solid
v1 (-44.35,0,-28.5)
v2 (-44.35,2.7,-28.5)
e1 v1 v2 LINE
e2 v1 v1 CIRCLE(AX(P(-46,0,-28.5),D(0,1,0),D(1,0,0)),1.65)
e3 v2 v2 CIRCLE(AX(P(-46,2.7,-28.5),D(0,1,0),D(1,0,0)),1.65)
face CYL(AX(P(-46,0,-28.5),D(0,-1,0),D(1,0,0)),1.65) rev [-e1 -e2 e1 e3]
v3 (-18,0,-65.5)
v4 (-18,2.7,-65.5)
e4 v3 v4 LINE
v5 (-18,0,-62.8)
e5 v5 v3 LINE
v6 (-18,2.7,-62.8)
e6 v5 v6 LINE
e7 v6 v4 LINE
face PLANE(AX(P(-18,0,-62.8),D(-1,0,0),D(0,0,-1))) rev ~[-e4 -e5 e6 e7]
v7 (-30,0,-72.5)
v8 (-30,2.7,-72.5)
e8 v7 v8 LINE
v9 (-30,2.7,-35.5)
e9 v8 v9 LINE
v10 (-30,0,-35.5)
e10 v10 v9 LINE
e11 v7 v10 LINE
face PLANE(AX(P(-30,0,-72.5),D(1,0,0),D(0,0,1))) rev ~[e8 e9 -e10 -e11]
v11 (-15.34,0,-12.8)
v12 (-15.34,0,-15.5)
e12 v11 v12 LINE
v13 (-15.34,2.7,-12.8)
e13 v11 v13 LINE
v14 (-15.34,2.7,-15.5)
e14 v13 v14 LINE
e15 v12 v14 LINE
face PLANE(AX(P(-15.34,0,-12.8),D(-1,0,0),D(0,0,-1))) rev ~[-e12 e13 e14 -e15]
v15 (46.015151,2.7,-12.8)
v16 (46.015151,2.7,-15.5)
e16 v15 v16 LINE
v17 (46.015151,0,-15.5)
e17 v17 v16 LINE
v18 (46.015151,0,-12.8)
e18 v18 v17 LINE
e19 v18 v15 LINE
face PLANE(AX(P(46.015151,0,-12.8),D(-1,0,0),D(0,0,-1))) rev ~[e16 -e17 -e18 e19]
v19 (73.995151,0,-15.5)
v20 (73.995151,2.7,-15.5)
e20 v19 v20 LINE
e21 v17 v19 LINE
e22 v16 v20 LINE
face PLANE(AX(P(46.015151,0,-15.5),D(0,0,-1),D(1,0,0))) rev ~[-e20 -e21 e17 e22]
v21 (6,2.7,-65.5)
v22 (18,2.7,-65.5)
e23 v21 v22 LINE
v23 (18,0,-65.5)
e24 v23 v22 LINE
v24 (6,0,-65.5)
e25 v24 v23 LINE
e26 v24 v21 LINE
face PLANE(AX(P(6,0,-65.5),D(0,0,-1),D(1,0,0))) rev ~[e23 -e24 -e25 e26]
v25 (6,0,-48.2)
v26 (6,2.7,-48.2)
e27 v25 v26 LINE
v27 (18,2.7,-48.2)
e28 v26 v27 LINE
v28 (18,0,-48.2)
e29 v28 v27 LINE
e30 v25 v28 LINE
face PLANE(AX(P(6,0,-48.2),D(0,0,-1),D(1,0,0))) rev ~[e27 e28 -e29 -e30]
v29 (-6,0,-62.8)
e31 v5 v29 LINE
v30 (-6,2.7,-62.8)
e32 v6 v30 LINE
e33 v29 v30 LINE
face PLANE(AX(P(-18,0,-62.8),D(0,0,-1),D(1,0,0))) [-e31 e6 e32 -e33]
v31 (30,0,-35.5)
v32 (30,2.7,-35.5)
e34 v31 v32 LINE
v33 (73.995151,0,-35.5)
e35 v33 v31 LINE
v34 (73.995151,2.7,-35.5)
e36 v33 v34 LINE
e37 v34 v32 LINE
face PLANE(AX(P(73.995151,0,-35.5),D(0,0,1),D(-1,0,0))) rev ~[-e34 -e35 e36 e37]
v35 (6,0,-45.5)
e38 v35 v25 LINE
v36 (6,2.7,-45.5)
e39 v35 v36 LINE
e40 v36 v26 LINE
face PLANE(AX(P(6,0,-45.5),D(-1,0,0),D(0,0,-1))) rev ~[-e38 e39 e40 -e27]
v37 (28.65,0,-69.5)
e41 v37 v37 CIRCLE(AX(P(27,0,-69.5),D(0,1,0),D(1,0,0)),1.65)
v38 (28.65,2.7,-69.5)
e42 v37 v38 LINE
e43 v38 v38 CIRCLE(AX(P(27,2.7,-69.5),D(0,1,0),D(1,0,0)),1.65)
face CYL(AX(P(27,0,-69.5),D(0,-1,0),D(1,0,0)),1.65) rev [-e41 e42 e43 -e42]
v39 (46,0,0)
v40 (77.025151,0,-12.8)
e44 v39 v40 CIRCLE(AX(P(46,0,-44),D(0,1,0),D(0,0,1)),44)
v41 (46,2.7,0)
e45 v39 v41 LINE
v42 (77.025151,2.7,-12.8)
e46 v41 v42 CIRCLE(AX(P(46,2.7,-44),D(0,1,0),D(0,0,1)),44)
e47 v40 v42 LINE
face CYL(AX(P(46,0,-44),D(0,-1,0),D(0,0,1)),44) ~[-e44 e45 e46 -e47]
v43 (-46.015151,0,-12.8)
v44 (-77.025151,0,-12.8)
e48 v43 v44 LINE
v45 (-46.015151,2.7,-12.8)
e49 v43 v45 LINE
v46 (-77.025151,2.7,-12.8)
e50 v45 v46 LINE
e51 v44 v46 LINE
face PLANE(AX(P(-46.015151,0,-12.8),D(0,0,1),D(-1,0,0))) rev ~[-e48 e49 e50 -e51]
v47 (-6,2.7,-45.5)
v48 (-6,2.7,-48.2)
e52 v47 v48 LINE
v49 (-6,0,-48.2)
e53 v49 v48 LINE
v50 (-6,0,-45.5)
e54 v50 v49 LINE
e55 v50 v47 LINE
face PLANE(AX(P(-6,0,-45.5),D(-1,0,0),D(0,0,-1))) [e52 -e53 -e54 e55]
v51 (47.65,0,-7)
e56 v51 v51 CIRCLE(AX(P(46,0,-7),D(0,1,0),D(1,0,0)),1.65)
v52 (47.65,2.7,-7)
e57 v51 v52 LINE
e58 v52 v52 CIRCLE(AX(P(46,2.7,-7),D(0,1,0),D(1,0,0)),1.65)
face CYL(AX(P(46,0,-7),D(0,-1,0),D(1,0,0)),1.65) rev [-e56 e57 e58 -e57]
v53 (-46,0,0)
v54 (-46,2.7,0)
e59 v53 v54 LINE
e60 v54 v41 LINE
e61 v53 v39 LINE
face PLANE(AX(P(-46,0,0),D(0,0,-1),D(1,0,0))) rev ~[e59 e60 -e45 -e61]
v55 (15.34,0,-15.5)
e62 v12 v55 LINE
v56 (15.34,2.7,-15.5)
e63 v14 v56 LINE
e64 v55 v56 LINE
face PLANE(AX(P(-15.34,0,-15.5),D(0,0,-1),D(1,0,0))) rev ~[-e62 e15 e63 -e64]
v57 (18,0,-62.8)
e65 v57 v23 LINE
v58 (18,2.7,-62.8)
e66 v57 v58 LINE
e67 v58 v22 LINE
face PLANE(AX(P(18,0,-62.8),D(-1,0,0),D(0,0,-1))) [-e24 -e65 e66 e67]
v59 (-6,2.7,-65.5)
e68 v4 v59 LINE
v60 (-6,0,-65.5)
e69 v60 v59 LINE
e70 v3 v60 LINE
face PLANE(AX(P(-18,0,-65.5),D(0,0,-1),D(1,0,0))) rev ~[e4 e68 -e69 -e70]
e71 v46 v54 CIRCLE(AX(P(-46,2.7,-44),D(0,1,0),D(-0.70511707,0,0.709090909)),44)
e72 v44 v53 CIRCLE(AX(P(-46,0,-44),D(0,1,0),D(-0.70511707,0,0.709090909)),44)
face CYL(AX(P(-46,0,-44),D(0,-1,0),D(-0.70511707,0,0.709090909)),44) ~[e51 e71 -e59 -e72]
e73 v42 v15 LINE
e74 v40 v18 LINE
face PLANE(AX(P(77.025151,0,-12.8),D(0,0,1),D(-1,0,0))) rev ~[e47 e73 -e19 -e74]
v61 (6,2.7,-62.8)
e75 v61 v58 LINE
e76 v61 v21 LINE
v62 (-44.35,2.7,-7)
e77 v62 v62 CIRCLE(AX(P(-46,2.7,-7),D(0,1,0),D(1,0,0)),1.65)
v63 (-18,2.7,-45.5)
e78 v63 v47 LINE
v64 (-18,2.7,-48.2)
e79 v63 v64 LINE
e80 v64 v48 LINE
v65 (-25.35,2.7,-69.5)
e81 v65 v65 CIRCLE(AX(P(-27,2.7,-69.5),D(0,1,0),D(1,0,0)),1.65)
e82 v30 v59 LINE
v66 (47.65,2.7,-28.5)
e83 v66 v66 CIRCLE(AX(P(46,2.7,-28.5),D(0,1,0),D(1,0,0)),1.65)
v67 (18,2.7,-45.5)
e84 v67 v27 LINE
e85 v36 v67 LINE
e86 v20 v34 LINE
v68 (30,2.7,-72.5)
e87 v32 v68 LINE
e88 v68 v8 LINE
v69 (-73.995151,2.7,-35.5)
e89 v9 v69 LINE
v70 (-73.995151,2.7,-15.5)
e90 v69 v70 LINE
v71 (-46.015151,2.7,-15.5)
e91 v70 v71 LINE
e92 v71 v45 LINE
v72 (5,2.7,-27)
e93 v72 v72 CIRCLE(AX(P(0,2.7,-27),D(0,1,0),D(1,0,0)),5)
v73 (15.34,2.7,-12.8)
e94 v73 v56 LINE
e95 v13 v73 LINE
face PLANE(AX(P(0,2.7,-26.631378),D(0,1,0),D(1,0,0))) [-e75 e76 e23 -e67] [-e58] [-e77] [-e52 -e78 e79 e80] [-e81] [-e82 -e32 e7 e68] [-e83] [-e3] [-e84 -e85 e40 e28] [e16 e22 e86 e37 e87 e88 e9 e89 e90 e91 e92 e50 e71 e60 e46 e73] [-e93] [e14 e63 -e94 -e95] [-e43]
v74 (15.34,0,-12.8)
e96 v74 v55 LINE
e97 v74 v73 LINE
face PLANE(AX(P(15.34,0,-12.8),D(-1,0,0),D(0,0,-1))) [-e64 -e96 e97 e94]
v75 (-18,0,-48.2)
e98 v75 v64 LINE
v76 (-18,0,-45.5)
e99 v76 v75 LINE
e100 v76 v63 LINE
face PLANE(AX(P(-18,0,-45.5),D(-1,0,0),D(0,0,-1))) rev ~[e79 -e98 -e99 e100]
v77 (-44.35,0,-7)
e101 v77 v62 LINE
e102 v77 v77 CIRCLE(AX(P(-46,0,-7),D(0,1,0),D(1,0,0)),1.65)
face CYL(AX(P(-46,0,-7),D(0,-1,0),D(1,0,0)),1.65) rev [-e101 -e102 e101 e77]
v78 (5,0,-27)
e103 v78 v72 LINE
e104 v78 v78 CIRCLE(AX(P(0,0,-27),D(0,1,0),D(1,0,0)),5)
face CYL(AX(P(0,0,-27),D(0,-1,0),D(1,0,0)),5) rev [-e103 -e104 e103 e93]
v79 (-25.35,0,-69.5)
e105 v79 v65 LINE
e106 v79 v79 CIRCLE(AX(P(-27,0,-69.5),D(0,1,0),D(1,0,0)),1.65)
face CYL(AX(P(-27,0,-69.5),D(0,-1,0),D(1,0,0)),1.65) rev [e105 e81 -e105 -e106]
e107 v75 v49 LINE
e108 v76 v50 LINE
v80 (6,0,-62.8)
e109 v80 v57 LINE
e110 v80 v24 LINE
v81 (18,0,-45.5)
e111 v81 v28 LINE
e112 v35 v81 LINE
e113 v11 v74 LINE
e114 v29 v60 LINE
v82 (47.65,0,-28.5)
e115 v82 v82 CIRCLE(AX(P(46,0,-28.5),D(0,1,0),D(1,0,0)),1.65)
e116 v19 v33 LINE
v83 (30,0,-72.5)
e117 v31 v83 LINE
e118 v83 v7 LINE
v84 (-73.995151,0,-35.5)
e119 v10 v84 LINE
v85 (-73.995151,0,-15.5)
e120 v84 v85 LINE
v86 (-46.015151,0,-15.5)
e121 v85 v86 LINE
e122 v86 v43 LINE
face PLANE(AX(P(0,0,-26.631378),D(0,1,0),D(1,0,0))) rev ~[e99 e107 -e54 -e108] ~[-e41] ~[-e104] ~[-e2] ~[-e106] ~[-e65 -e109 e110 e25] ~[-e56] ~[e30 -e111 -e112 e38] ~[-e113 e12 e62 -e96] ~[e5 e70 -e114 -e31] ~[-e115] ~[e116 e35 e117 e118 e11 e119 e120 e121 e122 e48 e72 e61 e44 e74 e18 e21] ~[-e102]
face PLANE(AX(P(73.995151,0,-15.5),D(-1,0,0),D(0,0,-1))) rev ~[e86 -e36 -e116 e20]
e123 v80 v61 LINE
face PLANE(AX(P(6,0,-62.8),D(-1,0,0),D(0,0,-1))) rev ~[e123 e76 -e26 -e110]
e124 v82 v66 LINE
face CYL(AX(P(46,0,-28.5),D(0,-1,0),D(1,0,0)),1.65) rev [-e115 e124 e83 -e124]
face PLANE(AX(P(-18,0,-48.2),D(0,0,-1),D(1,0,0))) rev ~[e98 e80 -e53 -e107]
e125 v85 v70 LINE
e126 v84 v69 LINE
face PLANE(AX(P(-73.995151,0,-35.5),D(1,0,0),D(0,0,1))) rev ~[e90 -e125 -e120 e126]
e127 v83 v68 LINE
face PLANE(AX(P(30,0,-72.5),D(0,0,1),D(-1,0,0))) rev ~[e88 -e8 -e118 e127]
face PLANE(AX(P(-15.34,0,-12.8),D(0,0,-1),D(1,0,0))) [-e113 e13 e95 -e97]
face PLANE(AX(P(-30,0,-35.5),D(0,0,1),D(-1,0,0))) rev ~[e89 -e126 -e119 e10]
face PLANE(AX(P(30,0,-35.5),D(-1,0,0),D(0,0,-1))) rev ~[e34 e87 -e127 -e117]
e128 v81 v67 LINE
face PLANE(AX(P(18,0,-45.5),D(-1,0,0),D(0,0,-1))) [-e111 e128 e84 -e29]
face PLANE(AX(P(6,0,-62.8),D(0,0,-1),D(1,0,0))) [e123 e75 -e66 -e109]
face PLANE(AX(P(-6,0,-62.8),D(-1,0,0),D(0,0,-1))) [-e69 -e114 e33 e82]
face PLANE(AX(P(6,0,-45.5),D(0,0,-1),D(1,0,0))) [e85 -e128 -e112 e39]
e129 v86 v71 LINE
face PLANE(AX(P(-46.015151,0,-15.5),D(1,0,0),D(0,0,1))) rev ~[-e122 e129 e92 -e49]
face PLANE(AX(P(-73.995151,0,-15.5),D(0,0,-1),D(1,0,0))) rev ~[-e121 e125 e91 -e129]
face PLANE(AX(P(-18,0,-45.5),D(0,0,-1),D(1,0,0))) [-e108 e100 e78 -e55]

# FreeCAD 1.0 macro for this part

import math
import FreeCAD as App
import Part
import Sketcher
from FreeCAD import Vector

doc = App.newDocument("Part")
body = doc.addObject("PartDesign::Body", "Body")

sketch1 = doc.addObject("Sketcher::SketchObject", "Sketch")
body.addObject(sketch1)
sketch1.AttachmentSupport = (doc.XZ_Plane, [""])
sketch1.MapMode = "FlatFace"
sketch1.addGeometry([
    Part.LineSegment(Vector(-46, 0, 0), Vector(46, 0, 0)),
    Part.ArcOfCircle(Part.Circle(Vector(46, -44, 0), Vector(0, 0, 1), 44), math.radians(45.160997), math.radians(90)),
    Part.LineSegment(Vector(77.025151, -12.8, 0), Vector(46.015151, -12.8, 0)),
    Part.LineSegment(Vector(46.015151, -12.8, 0), Vector(46.015151, -15.5, 0)),
    Part.LineSegment(Vector(46.015151, -15.5, 0), Vector(73.995151, -15.5, 0)),
    Part.LineSegment(Vector(73.995151, -15.5, 0), Vector(73.995151, -35.5, 0)),
    Part.LineSegment(Vector(73.995151, -35.5, 0), Vector(30, -35.5, 0)),
    Part.LineSegment(Vector(30, -35.5, 0), Vector(30, -72.5, 0)),
    Part.LineSegment(Vector(30, -72.5, 0), Vector(-30, -72.5, 0)),
    Part.LineSegment(Vector(-30, -72.5, 0), Vector(-30, -35.5, 0)),
    Part.LineSegment(Vector(-30, -35.5, 0), Vector(-73.995151, -35.5, 0)),
    Part.LineSegment(Vector(-73.995151, -35.5, 0), Vector(-73.995151, -15.5, 0)),
    Part.LineSegment(Vector(-73.995151, -15.5, 0), Vector(-46.015151, -15.5, 0)),
    Part.LineSegment(Vector(-46.015151, -15.5, 0), Vector(-46.015151, -12.8, 0)),
    Part.LineSegment(Vector(-46.015151, -12.8, 0), Vector(-77.025151, -12.8, 0)),
    Part.ArcOfCircle(Part.Circle(Vector(-46, -44, 0), Vector(0, 0, 1), 44), math.radians(90), math.radians(134.839003)),
    Part.Circle(Vector(-46, -7, 0), Vector(0, 0, 1), 1.65),
    Part.Circle(Vector(-46, -28.5, 0), Vector(0, 0, 1), 1.65),
    Part.LineSegment(Vector(15.34, -12.8, 0), Vector(-15.34, -12.8, 0)),
    Part.LineSegment(Vector(-15.34, -12.8, 0), Vector(-15.34, -15.5, 0)),
    Part.LineSegment(Vector(-15.34, -15.5, 0), Vector(15.34, -15.5, 0)),
    Part.LineSegment(Vector(15.34, -15.5, 0), Vector(15.34, -12.8, 0)),
    Part.Circle(Vector(46, -7, 0), Vector(0, 0, 1), 1.65),
    Part.Circle(Vector(0, -27, 0), Vector(0, 0, 1), 5),
    Part.Circle(Vector(46, -28.5, 0), Vector(0, 0, 1), 1.65),
    Part.LineSegment(Vector(-6, -45.5, 0), Vector(-18, -45.5, 0)),
    Part.LineSegment(Vector(-18, -45.5, 0), Vector(-18, -48.2, 0)),
    Part.LineSegment(Vector(-18, -48.2, 0), Vector(-6, -48.2, 0)),
    Part.LineSegment(Vector(-6, -48.2, 0), Vector(-6, -45.5, 0)),
    Part.Circle(Vector(-27, -69.5, 0), Vector(0, 0, 1), 1.65),
    Part.LineSegment(Vector(-6, -62.8, 0), Vector(-18, -62.8, 0)),
    Part.LineSegment(Vector(-18, -62.8, 0), Vector(-18, -65.5, 0)),
    Part.LineSegment(Vector(-18, -65.5, 0), Vector(-6, -65.5, 0)),
    Part.LineSegment(Vector(-6, -65.5, 0), Vector(-6, -62.8, 0)),
    Part.LineSegment(Vector(18, -45.5, 0), Vector(6, -45.5, 0)),
    Part.LineSegment(Vector(6, -45.5, 0), Vector(6, -48.2, 0)),
    Part.LineSegment(Vector(6, -48.2, 0), Vector(18, -48.2, 0)),
    Part.LineSegment(Vector(18, -48.2, 0), Vector(18, -45.5, 0)),
    Part.LineSegment(Vector(18, -62.8, 0), Vector(6, -62.8, 0)),
    Part.LineSegment(Vector(6, -62.8, 0), Vector(6, -65.5, 0)),
    Part.LineSegment(Vector(6, -65.5, 0), Vector(18, -65.5, 0)),
    Part.LineSegment(Vector(18, -65.5, 0), Vector(18, -62.8, 0)),
    Part.Circle(Vector(27, -69.5, 0), Vector(0, 0, 1), 1.65),
], False)
sketch1.addConstraint([
    Sketcher.Constraint("Tangent", 0, 2, 1, 2),
    Sketcher.Constraint("Coincident", 1, 1, 2, 1),
    Sketcher.Constraint("Coincident", 2, 2, 3, 1),
    Sketcher.Constraint("Coincident", 3, 2, 4, 1),
    Sketcher.Constraint("Coincident", 4, 2, 5, 1),
    Sketcher.Constraint("Coincident", 5, 2, 6, 1),
    Sketcher.Constraint("Coincident", 6, 2, 7, 1),
    Sketcher.Constraint("Coincident", 7, 2, 8, 1),
    Sketcher.Constraint("Coincident", 8, 2, 9, 1),
    Sketcher.Constraint("Coincident", 9, 2, 10, 1),
    Sketcher.Constraint("Coincident", 10, 2, 11, 1),
    Sketcher.Constraint("Coincident", 11, 2, 12, 1),
    Sketcher.Constraint("Coincident", 12, 2, 13, 1),
    Sketcher.Constraint("Coincident", 13, 2, 14, 1),
    Sketcher.Constraint("Coincident", 14, 2, 15, 2),
    Sketcher.Constraint("Tangent", 15, 1, 0, 1),
    Sketcher.Constraint("Coincident", 18, 2, 19, 1),
    Sketcher.Constraint("Coincident", 19, 2, 20, 1),
    Sketcher.Constraint("Coincident", 20, 2, 21, 1),
    Sketcher.Constraint("Coincident", 21, 2, 18, 1),
    Sketcher.Constraint("Coincident", 25, 2, 26, 1),
    Sketcher.Constraint("Coincident", 26, 2, 27, 1),
    Sketcher.Constraint("Coincident", 27, 2, 28, 1),
    Sketcher.Constraint("Coincident", 28, 2, 25, 1),
    Sketcher.Constraint("Coincident", 30, 2, 31, 1),
    Sketcher.Constraint("Coincident", 31, 2, 32, 1),
    Sketcher.Constraint("Coincident", 32, 2, 33, 1),
    Sketcher.Constraint("Coincident", 33, 2, 30, 1),
    Sketcher.Constraint("Coincident", 34, 2, 35, 1),
    Sketcher.Constraint("Coincident", 35, 2, 36, 1),
    Sketcher.Constraint("Coincident", 36, 2, 37, 1),
    Sketcher.Constraint("Coincident", 37, 2, 34, 1),
    Sketcher.Constraint("Coincident", 38, 2, 39, 1),
    Sketcher.Constraint("Coincident", 39, 2, 40, 1),
    Sketcher.Constraint("Coincident", 40, 2, 41, 1),
    Sketcher.Constraint("Coincident", 41, 2, 38, 1),
    Sketcher.Constraint("Horizontal", 0),
    Sketcher.Constraint("Horizontal", 2),
    Sketcher.Constraint("Vertical", 3),
    Sketcher.Constraint("Horizontal", 4),
    Sketcher.Constraint("Vertical", 5),
    Sketcher.Constraint("Horizontal", 6),
    Sketcher.Constraint("Vertical", 7),
    Sketcher.Constraint("Horizontal", 8),
    Sketcher.Constraint("Vertical", 9),
    Sketcher.Constraint("Horizontal", 10),
    Sketcher.Constraint("Vertical", 11),
    Sketcher.Constraint("Horizontal", 12),
    Sketcher.Constraint("Vertical", 13),
    Sketcher.Constraint("Horizontal", 14),
    Sketcher.Constraint("Horizontal", 18),
    Sketcher.Constraint("Vertical", 19),
    Sketcher.Constraint("Horizontal", 20),
    Sketcher.Constraint("Vertical", 21),
    Sketcher.Constraint("Horizontal", 25),
    Sketcher.Constraint("Vertical", 26),
    Sketcher.Constraint("Horizontal", 27),
    Sketcher.Constraint("Vertical", 28),
    Sketcher.Constraint("Horizontal", 30),
    Sketcher.Constraint("Vertical", 31),
    Sketcher.Constraint("Horizontal", 32),
    Sketcher.Constraint("Vertical", 33),
    Sketcher.Constraint("Horizontal", 34),
    Sketcher.Constraint("Vertical", 35),
    Sketcher.Constraint("Horizontal", 36),
    Sketcher.Constraint("Vertical", 37),
    Sketcher.Constraint("Horizontal", 38),
    Sketcher.Constraint("Vertical", 39),
    Sketcher.Constraint("Horizontal", 40),
    Sketcher.Constraint("Vertical", 41),
    Sketcher.Constraint("Equal", 1, 15),
    Sketcher.Constraint("Equal", 16, 17),
    Sketcher.Constraint("Equal", 17, 22),
    Sketcher.Constraint("Equal", 22, 24),
    Sketcher.Constraint("Equal", 24, 29),
    Sketcher.Constraint("Equal", 29, 42),
    Sketcher.Constraint("Symmetric", 0, 2, 15, 1, -1, 1),
    Sketcher.Constraint("Symmetric", 16, 3, 22, 3, -2),
    Sketcher.Constraint("Symmetric", 17, 3, 24, 3, -2),
    Sketcher.Constraint("Symmetric", 29, 3, 42, 3, -2),
    Sketcher.Constraint("Symmetric", 6, 2, 9, 2, -2),
    Sketcher.Constraint("Symmetric", 4, 2, 11, 2, -2),
    Sketcher.Constraint("Symmetric", 2, 2, 13, 2, -2),
    Sketcher.Constraint("Symmetric", 28, 2, 34, 2, -2),
    Sketcher.Constraint("Symmetric", 26, 2, 36, 2, -2),
    Sketcher.Constraint("Symmetric", 33, 2, 38, 2, -2),
    Sketcher.Constraint("Symmetric", 31, 2, 40, 2, -2),
    Sketcher.Constraint("PointOnObject", 23, 3, -2),
    Sketcher.Constraint("Horizontal", 14, 2, 18, 2),
    Sketcher.Constraint("Horizontal", 12, 2, 19, 2),
    Sketcher.Constraint("Vertical", 15, 3, 16, 3),
    Sketcher.Constraint("Vertical", 16, 3, 17, 3),
    Sketcher.Constraint("Vertical", 26, 2, 30, 2),
    Sketcher.Constraint("Vertical", 28, 2, 32, 2),
    Sketcher.Constraint("Equal", 21, 26),
    Sketcher.Constraint("Equal", 28, 31),
    Sketcher.Constraint("Diameter", 23, 10.0),
    Sketcher.Constraint("Radius", 1, 44.0),
    Sketcher.Constraint("Diameter", 16, 3.3),
    Sketcher.Constraint("DistanceX", 0, 1, 0, 2, 92.0),
    Sketcher.Constraint("DistanceX", 8, 2, 8, 1, 60.0),
    Sketcher.Constraint("DistanceX", 25, 2, 25, 1, 12.0),
    Sketcher.Constraint("DistanceY", 5, 2, 5, 1, 20.0),
    Sketcher.Constraint("DistanceY", 7, 2, 7, 1, 37.0),
    Sketcher.Constraint("DistanceY", 3, 2, 3, 1, 2.7),
    Sketcher.Constraint("DistanceY", 16, 3, -1, 1, 7.0),
    Sketcher.Constraint("DistanceY", 23, 3, -1, 1, 27.0),
    Sketcher.Constraint("DistanceX", 29, 3, -1, 1, 27.0),
    Sketcher.Constraint("DistanceX", 25, 2, -1, 1, 18.0),
    Sketcher.Constraint("DistanceY", 29, 3, 17, 3, 41.0),
    Sketcher.Constraint("DistanceY", 24, 3, 3, 2, 13.0),
    Sketcher.Constraint("DistanceY", 25, 2, 9, 2, 10.0),
    Sketcher.Constraint("DistanceY", 29, 3, 31, 2, 4.0),
    Sketcher.Constraint("DistanceX", 2, 2, 2, 1, 31.01),
    Sketcher.Constraint("DistanceX", 4, 1, 4, 2, 27.98),
    Sketcher.Constraint("DistanceX", 18, 2, 18, 1, 30.68),
    Sketcher.Constraint("DistanceY", 17, 3, -1, 1, 28.5),
    Sketcher.Constraint("DistanceX", 18, 2, -1, 1, 15.34),
])
pad1 = doc.addObject("PartDesign::Pad", "Pad")
body.addObject(pad1)
pad1.Profile = sketch1
pad1.Length = 2.7
pad1.Reversed = True

doc.recompute()
